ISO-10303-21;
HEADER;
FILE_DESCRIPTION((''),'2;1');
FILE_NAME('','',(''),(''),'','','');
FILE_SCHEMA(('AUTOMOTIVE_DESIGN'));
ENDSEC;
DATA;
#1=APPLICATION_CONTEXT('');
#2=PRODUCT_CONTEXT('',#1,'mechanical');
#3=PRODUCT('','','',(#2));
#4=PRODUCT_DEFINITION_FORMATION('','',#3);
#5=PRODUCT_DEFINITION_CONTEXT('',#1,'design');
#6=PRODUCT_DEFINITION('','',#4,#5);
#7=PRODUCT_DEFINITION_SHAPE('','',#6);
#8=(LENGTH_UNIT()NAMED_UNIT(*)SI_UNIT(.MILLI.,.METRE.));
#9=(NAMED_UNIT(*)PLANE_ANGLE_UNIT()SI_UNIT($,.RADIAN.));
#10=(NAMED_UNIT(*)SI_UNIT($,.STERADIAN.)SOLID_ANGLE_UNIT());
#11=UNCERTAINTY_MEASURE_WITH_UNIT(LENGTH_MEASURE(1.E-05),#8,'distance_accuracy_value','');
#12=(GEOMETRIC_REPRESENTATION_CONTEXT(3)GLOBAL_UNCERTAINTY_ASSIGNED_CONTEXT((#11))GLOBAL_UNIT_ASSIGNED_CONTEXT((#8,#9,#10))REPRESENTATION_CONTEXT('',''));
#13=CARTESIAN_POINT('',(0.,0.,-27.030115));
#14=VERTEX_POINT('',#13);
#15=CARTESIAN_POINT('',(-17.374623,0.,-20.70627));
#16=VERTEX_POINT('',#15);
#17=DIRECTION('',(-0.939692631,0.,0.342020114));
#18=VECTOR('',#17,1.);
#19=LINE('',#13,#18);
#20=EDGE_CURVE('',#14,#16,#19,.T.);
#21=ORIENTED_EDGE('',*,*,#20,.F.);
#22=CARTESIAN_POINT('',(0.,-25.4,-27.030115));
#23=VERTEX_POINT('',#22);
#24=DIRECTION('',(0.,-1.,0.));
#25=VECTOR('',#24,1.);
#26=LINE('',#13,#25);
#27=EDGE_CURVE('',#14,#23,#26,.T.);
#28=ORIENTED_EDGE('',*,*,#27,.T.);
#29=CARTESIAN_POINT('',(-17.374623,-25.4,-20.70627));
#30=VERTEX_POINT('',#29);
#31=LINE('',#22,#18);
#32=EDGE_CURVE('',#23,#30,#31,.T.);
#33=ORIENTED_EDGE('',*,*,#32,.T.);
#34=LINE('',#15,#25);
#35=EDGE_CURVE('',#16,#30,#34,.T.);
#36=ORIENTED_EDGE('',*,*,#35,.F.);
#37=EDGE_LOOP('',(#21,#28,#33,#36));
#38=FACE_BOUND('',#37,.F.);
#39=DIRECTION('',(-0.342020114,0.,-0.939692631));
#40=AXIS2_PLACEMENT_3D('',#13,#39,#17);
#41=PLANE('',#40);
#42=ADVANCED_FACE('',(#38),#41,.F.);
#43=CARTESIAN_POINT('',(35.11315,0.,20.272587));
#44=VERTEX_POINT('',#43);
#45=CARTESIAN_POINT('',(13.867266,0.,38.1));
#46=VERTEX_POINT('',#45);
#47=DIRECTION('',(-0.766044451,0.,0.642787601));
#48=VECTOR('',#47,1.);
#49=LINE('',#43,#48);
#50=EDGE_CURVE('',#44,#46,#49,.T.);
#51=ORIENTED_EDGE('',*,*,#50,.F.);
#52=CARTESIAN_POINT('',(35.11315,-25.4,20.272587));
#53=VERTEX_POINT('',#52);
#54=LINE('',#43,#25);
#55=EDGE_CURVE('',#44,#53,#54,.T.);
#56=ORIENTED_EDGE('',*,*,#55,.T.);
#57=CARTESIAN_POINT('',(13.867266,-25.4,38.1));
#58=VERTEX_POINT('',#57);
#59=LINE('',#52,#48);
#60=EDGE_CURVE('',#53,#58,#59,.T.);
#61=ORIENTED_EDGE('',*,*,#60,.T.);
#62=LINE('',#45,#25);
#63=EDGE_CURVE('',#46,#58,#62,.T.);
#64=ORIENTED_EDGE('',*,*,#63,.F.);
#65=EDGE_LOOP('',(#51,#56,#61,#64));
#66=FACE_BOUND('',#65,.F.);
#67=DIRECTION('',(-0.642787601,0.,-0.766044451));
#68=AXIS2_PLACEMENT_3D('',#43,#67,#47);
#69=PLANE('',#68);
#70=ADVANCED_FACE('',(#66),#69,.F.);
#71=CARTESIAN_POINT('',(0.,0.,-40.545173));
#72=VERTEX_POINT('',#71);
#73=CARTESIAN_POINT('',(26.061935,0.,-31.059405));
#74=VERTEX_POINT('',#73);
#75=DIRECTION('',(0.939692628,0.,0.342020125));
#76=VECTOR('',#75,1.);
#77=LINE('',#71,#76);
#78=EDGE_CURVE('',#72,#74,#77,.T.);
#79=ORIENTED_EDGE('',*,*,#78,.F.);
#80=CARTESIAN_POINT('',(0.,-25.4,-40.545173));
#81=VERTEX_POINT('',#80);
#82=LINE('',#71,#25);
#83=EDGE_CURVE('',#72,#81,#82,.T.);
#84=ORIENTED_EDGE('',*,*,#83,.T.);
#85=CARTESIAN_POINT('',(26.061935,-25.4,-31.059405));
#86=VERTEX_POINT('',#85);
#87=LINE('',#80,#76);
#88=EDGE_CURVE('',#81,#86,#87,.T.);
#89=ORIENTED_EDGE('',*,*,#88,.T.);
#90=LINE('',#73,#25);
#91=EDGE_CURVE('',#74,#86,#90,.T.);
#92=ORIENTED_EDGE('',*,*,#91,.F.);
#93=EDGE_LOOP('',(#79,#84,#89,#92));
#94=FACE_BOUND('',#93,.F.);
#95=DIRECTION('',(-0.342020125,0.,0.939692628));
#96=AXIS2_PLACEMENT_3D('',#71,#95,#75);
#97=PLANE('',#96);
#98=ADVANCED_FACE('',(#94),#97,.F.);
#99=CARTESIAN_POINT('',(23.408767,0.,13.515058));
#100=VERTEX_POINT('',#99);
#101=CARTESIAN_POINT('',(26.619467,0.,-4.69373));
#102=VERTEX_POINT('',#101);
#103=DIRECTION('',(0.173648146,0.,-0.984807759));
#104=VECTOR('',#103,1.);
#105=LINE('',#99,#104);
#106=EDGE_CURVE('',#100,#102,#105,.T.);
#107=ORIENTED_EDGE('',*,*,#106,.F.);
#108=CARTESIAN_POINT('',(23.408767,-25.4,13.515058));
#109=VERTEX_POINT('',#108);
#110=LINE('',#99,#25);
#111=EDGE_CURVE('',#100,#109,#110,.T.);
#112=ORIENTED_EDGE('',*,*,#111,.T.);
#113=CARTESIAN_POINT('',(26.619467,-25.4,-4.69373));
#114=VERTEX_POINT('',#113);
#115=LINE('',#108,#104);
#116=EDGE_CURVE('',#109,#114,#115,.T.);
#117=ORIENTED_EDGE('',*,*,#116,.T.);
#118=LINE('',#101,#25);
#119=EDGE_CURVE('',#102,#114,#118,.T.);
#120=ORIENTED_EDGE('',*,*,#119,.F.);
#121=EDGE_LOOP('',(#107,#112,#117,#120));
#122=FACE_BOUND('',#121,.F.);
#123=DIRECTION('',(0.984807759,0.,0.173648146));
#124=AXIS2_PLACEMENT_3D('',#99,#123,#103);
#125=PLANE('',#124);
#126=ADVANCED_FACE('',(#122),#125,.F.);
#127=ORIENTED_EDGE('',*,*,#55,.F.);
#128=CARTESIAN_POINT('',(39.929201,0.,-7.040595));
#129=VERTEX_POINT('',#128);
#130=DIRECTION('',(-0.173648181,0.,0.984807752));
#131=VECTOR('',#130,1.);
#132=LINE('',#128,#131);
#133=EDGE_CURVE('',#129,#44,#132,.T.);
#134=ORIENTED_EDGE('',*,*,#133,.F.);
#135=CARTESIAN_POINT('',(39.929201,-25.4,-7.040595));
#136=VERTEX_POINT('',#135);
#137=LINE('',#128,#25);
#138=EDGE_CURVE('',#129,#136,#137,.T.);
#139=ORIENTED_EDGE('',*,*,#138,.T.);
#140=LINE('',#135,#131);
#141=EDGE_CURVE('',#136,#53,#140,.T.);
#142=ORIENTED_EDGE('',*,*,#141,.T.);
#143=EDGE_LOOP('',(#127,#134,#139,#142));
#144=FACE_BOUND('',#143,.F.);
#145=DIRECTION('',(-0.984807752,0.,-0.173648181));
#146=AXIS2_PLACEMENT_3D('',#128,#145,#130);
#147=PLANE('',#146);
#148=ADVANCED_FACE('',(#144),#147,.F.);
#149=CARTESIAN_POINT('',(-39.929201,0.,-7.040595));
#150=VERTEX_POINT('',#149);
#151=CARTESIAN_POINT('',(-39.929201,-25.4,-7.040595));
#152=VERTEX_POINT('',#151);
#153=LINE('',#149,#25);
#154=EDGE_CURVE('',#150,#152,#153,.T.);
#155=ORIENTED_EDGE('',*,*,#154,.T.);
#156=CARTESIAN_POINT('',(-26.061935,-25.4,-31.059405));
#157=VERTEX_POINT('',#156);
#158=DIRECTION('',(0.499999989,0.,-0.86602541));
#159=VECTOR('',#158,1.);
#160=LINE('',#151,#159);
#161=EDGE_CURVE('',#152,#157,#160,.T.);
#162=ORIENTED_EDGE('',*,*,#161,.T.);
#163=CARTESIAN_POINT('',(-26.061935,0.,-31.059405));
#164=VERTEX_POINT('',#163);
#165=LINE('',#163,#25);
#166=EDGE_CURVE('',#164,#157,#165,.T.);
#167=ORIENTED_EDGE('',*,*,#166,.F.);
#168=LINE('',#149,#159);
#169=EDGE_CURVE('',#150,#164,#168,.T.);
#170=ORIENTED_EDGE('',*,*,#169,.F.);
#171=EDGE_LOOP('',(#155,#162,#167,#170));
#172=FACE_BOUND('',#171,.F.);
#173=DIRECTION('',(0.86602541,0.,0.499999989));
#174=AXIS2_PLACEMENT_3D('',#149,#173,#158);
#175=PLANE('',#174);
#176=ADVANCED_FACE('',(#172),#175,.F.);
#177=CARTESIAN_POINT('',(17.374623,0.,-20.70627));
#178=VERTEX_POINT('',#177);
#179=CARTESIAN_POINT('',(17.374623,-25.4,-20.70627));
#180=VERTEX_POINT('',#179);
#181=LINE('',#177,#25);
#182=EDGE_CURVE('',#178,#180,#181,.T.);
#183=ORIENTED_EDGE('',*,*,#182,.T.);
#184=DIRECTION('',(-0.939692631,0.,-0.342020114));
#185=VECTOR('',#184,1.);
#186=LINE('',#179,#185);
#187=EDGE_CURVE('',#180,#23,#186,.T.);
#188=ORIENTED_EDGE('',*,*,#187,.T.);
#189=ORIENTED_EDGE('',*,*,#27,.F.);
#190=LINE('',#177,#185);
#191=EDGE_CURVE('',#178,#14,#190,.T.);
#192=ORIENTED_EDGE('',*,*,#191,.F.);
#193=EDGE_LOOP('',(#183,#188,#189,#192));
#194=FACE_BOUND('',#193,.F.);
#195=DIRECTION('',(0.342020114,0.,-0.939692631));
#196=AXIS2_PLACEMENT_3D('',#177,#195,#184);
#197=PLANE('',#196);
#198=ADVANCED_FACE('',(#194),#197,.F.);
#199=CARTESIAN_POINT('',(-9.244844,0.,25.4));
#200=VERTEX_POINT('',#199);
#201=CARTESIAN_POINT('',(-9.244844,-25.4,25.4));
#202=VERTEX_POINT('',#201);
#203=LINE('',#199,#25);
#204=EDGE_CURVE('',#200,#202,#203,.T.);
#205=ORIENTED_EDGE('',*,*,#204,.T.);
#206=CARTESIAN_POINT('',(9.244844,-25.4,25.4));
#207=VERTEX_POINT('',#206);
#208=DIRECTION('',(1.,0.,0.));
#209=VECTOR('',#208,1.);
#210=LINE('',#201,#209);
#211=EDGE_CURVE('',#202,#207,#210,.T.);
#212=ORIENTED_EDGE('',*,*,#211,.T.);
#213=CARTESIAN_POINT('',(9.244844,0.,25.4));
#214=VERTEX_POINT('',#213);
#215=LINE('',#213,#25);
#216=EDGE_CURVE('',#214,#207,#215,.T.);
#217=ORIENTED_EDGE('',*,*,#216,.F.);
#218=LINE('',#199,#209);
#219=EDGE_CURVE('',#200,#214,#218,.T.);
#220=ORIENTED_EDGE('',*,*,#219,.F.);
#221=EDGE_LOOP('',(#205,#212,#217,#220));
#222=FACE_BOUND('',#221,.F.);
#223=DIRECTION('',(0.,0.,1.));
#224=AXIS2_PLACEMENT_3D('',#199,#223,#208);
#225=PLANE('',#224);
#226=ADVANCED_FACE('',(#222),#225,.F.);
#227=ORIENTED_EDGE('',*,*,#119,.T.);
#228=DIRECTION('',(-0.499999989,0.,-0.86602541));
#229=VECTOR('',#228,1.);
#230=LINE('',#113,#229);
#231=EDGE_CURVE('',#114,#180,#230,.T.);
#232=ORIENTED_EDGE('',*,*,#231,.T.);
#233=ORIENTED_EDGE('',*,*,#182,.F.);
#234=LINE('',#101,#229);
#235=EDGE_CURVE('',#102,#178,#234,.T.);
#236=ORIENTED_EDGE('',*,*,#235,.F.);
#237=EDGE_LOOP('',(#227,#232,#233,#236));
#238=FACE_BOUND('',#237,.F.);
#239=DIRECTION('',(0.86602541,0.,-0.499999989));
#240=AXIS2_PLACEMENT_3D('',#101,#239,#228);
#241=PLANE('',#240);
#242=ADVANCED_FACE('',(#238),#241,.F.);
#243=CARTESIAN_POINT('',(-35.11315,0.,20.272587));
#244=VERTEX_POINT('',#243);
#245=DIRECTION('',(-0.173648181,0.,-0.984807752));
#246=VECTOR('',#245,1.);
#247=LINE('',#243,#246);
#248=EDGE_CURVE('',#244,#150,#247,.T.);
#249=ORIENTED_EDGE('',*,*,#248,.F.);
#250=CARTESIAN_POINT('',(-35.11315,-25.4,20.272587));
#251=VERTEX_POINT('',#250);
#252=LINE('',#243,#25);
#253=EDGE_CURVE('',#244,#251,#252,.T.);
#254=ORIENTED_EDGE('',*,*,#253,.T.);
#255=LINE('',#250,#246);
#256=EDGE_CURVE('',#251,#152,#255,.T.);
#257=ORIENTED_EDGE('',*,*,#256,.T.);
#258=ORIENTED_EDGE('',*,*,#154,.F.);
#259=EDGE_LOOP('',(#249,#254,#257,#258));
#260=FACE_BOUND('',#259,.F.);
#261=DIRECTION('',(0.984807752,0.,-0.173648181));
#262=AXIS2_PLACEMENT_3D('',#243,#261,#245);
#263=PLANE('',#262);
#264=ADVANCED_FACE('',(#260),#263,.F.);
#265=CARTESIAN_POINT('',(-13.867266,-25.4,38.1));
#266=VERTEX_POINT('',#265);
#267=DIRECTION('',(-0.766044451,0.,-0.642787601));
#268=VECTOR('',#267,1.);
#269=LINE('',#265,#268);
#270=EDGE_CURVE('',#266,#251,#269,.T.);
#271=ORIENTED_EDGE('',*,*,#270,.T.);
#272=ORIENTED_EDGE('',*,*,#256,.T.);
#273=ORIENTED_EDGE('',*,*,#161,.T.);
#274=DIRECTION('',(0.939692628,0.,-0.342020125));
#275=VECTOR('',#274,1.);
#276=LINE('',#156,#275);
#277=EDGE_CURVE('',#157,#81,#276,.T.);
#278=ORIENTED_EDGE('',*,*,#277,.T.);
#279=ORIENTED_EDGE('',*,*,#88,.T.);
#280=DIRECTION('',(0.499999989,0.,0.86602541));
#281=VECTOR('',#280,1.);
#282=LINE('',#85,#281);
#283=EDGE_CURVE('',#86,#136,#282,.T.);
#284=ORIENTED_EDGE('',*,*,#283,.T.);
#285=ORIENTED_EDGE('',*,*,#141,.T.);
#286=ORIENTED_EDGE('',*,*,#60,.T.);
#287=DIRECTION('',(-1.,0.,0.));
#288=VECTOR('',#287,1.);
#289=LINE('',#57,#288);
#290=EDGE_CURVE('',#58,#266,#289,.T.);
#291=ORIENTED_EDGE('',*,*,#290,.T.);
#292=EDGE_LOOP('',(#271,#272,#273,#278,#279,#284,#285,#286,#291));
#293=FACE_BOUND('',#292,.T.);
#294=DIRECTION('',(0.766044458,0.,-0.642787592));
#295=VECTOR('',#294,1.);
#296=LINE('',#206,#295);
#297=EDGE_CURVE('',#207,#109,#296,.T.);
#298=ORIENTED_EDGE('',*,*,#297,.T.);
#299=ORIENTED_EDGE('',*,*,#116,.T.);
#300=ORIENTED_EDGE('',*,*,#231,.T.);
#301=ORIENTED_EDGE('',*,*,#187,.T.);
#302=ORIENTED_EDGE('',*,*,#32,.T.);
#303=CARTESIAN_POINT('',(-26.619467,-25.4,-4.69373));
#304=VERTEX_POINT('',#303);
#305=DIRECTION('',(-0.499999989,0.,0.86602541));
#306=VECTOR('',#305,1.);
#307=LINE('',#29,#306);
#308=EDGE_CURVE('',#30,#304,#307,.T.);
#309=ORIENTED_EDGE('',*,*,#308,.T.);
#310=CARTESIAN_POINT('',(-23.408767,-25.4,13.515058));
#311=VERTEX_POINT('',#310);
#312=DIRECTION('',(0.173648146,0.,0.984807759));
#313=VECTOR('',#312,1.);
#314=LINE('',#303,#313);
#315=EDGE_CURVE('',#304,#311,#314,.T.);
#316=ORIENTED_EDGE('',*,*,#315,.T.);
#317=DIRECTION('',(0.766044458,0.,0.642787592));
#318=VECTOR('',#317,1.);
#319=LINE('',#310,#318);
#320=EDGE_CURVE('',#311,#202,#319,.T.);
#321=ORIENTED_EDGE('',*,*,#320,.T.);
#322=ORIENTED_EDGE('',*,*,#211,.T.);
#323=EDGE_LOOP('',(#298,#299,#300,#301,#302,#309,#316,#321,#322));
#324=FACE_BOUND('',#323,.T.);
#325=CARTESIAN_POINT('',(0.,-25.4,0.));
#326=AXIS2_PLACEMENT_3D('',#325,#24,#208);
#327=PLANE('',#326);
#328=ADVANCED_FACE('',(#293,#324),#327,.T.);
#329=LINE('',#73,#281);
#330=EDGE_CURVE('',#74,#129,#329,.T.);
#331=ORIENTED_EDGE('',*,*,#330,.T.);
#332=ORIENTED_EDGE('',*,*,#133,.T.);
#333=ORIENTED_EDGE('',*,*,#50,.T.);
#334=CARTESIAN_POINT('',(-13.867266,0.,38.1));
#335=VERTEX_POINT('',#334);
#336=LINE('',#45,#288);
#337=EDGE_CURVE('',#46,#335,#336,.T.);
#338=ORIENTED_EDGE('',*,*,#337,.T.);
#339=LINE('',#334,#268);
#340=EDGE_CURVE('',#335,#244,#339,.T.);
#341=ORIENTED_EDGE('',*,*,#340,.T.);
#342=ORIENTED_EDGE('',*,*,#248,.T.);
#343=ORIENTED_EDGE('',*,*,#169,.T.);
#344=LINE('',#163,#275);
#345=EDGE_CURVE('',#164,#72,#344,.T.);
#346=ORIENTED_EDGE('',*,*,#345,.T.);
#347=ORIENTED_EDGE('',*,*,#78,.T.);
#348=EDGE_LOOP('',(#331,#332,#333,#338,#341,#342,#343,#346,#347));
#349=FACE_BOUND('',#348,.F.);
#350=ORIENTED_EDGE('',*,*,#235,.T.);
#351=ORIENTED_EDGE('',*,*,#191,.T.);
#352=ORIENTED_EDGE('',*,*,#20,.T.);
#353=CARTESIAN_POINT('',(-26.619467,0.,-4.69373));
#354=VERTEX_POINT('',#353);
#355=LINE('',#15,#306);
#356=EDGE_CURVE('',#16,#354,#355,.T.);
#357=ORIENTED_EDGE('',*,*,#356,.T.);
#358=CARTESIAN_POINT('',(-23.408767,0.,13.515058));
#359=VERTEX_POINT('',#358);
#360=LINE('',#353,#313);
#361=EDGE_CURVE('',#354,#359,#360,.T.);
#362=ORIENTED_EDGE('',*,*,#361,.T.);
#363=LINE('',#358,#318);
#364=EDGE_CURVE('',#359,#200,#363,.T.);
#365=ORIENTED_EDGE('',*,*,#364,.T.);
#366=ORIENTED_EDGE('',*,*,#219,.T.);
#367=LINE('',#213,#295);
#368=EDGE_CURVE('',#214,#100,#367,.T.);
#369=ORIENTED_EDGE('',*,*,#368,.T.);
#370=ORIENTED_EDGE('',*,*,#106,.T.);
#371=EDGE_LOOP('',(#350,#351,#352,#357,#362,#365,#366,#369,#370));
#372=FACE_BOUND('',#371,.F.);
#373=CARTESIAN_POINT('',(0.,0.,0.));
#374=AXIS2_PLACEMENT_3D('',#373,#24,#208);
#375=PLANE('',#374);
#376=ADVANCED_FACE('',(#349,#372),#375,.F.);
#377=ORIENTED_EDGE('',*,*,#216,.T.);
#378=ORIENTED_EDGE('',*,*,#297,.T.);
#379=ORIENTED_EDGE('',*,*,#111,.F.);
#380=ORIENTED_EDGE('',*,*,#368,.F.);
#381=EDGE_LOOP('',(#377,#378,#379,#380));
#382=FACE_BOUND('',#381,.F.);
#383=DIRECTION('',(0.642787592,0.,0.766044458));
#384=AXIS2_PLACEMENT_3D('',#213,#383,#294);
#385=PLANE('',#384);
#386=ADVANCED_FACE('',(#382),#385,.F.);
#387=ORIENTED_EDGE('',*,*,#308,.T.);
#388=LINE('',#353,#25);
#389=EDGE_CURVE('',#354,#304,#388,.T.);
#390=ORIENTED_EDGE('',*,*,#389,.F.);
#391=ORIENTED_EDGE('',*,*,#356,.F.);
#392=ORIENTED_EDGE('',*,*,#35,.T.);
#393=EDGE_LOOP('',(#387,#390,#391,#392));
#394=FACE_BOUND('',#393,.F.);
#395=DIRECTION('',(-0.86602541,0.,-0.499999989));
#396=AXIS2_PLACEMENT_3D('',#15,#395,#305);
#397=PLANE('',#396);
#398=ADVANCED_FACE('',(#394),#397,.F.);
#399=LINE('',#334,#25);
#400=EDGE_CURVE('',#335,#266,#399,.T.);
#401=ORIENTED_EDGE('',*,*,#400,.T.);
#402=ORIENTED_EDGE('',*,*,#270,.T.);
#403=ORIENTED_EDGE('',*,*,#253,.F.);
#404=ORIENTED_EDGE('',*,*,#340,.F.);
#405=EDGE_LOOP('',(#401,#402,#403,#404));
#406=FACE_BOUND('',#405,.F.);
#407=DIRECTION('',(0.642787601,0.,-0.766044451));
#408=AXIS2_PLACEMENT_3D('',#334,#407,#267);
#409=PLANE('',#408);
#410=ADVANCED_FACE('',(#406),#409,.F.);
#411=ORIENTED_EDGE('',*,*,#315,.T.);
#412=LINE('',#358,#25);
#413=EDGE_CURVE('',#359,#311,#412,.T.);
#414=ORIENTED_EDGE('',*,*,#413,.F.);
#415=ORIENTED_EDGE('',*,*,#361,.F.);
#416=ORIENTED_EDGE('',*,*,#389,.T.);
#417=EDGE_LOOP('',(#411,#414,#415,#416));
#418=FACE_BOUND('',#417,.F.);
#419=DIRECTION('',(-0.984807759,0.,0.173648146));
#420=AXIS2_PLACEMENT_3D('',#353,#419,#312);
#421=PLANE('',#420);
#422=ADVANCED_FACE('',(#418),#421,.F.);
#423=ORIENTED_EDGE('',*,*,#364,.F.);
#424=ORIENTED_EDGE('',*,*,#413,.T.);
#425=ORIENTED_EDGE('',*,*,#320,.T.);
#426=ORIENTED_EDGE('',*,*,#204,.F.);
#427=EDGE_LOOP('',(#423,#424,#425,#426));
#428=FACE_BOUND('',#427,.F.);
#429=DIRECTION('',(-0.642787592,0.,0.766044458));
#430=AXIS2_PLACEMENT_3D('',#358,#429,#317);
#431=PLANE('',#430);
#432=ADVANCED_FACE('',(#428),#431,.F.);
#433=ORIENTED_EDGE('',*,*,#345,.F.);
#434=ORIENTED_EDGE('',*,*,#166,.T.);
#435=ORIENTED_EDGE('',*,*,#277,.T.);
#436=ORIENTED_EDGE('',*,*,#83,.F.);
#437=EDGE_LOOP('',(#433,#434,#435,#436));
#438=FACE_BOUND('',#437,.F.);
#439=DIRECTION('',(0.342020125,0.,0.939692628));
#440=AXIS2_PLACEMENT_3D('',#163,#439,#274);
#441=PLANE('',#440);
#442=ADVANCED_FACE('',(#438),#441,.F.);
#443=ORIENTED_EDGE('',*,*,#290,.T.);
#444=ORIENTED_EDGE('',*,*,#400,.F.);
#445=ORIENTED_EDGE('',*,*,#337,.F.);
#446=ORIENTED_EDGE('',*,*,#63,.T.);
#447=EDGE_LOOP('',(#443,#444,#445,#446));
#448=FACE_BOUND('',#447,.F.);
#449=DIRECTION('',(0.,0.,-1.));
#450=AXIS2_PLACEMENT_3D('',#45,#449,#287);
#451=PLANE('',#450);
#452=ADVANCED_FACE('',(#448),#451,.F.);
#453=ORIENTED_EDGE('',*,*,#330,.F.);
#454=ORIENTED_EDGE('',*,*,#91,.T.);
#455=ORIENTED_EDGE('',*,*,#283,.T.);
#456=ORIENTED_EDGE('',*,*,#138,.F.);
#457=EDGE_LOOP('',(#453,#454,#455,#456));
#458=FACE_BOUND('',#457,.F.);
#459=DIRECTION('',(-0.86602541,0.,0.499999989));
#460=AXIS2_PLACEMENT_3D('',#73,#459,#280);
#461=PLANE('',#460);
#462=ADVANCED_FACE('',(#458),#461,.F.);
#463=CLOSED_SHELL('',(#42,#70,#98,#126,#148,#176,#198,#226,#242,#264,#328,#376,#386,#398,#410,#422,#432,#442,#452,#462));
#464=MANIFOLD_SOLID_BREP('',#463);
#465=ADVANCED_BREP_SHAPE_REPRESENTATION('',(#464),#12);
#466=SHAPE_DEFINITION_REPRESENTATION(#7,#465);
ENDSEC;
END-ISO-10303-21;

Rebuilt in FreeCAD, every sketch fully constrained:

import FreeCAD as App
import Part
import Sketcher
from FreeCAD import Vector
Q = App.Units.Quantity

doc = App.newDocument("Part")
body = doc.addObject("PartDesign::Body", "Body")

# Sketch on XZ plane
sketch1 = doc.addObject("Sketcher::SketchObject", "Sketch")
body.addObject(sketch1)
sketch1.AttachmentSupport = (doc.XZ_Plane, [""])
sketch1.MapMode = "FlatFace"
sketch1.addGeometry([
    Part.LineSegment(Vector(14, 38, 0), Vector(-14, 38, 0)),  # 0
    Part.LineSegment(Vector(-14, 38, 0), Vector(-35, 20, 0)),  # 1
    Part.LineSegment(Vector(-35, 20, 0), Vector(-40, -7, 0)),  # 2
    Part.LineSegment(Vector(-40, -7, 0), Vector(-26, -31, 0)),  # 3
    Part.LineSegment(Vector(-26, -31, 0), Vector(0, -41, 0)),  # 4
    Part.LineSegment(Vector(0, -41, 0), Vector(26, -31, 0)),  # 5
    Part.LineSegment(Vector(26, -31, 0), Vector(40, -7, 0)),  # 6
    Part.LineSegment(Vector(40, -7, 0), Vector(35, 20, 0)),  # 7
    Part.LineSegment(Vector(35, 20, 0), Vector(14, 38, 0)),  # 8
    Part.LineSegment(Vector(-23, 14, 0), Vector(-9, 25, 0)),  # 9
    Part.LineSegment(Vector(-9, 25, 0), Vector(9, 25, 0)),  # 10
    Part.LineSegment(Vector(9, 25, 0), Vector(23, 14, 0)),  # 11
    Part.LineSegment(Vector(23, 14, 0), Vector(27, -5, 0)),  # 12
    Part.LineSegment(Vector(27, -5, 0), Vector(17, -21, 0)),  # 13
    Part.LineSegment(Vector(17, -21, 0), Vector(0, -27, 0)),  # 14
    Part.LineSegment(Vector(0, -27, 0), Vector(-17, -21, 0)),  # 15
    Part.LineSegment(Vector(-17, -21, 0), Vector(-27, -5, 0)),  # 16
    Part.LineSegment(Vector(-27, -5, 0), Vector(-23, 14, 0)),  # 17
], False)
sketch1.addConstraint([
    Sketcher.Constraint("Coincident", 0, 2, 1, 1),
    Sketcher.Constraint("Coincident", 1, 2, 2, 1),
    Sketcher.Constraint("Coincident", 2, 2, 3, 1),
    Sketcher.Constraint("Coincident", 3, 2, 4, 1),
    Sketcher.Constraint("Coincident", 4, 2, 5, 1),
    Sketcher.Constraint("Coincident", 5, 2, 6, 1),
    Sketcher.Constraint("Coincident", 6, 2, 7, 1),
    Sketcher.Constraint("Coincident", 7, 2, 8, 1),
    Sketcher.Constraint("Coincident", 8, 2, 0, 1),
    Sketcher.Constraint("Coincident", 9, 2, 10, 1),
    Sketcher.Constraint("Coincident", 10, 2, 11, 1),
    Sketcher.Constraint("Coincident", 11, 2, 12, 1),
    Sketcher.Constraint("Coincident", 12, 2, 13, 1),
    Sketcher.Constraint("Coincident", 13, 2, 14, 1),
    Sketcher.Constraint("Coincident", 14, 2, 15, 1),
    Sketcher.Constraint("Coincident", 15, 2, 16, 1),
    Sketcher.Constraint("Coincident", 16, 2, 17, 1),
    Sketcher.Constraint("Coincident", 17, 2, 9, 1),
    Sketcher.Constraint("Horizontal", 0),
    Sketcher.Constraint("Horizontal", 10),
    Sketcher.Constraint("Symmetric", 3, 2, 5, 2, -2),
    Sketcher.Constraint("Symmetric", 2, 2, 6, 2, -2),
    Sketcher.Constraint("Symmetric", 1, 2, 7, 2, -2),
    Sketcher.Constraint("Symmetric", 13, 2, 15, 2, -2),
    Sketcher.Constraint("Symmetric", 12, 2, 16, 2, -2),
    Sketcher.Constraint("Symmetric", 11, 2, 17, 2, -2),
    Sketcher.Constraint("PointOnObject", 4, 2, -2),
    Sketcher.Constraint("PointOnObject", 14, 2, -2),
    Sketcher.Constraint("Parallel", 1, 9),
    Sketcher.Constraint("Parallel", 8, 11),
    Sketcher.Constraint("Parallel", 7, 12),
    Sketcher.Constraint("Parallel", 6, 13),
    Sketcher.Constraint("Parallel", 5, 14),
    Sketcher.Constraint("Equal", 1, 2),
    Sketcher.Constraint("Equal", 2, 3),
    Sketcher.Constraint("Equal", 3, 4),
    Sketcher.Constraint("Equal", 7, 8),
    Sketcher.Constraint("Equal", 11, 12),
    Sketcher.Constraint("Equal", 12, 13),
    Sketcher.Constraint("Equal", 13, 14),
    Sketcher.Constraint("DistanceY", -1, 1, 9, 2, Q("1 in")),
    Sketcher.Constraint("Angle", 1, Q("-140.000001 deg")),
    Sketcher.Constraint("Angle", 2, Q("-100 deg")),
    Sketcher.Constraint("Angle", 3, Q("-60.000001 deg")),
    Sketcher.Constraint("Angle", 4, Q("-19.999999 deg")),
    Sketcher.Constraint("DistanceY", -1, 1, 0, 2, Q("1.5 in")),
    Sketcher.Constraint("DistanceY", 4, 2, 1, 2, Q("2.3944 in")),
    Sketcher.Constraint("DistanceX", 10, 1, 10, 2, 18.489688),
])
pad1 = doc.addObject("PartDesign::Pad", "Pad")
body.addObject(pad1)
pad1.Profile = sketch1
pad1.Length = Q("1 in")

doc.recompute()
